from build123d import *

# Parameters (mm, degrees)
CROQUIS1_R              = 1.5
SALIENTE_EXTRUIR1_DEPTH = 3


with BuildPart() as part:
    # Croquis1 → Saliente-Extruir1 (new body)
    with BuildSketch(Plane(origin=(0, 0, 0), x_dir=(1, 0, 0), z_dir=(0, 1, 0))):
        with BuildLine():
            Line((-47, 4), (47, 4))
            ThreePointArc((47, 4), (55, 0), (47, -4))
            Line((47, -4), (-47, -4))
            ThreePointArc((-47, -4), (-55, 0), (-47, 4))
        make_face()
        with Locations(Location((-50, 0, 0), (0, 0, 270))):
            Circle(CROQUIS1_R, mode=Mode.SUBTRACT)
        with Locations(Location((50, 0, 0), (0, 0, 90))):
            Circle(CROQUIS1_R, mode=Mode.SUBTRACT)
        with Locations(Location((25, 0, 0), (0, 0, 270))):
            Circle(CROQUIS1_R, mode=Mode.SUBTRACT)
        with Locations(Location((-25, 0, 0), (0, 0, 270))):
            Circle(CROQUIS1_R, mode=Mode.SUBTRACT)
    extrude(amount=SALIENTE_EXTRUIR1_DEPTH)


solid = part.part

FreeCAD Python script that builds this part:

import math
import FreeCAD as App
import Part
import Sketcher

V = App.Vector

doc = App.newDocument("Part")
body = doc.addObject("PartDesign::Body", "Body")

# Sketch on XZ plane
sketch1 = body.newObject("Sketcher::SketchObject", "Sketch")
sketch1.AttachmentSupport = (doc.getObject("XZ_Plane"), [""])
sketch1.MapMode = "FlatFace"
sketch1.addGeometry([
    Part.LineSegment(V(47, -4, 0), V(-47, -4, 0)),  # 0
    Part.ArcOfCircle(Part.Circle(V(-50, 0, 0), V(0, 0, 1), 5), math.radians(53.130102), math.radians(306.869898)),  # 1
    Part.LineSegment(V(-47, 4, 0), V(47, 4, 0)),  # 2
    Part.ArcOfCircle(Part.Circle(V(50, 0, 0), V(0, 0, 1), 5), math.radians(-126.869898), math.radians(126.869898)),  # 3
    Part.Circle(V(50, 0, 0), V(0, 0, 1), 1.5),  # 4
    Part.Circle(V(25, 0, 0), V(0, 0, 1), 1.5),  # 5
    Part.Circle(V(-25, 0, 0), V(0, 0, 1), 1.5),  # 6
    Part.Circle(V(-50, 0, 0), V(0, 0, 1), 1.5),  # 7
], False)
sketch1.addConstraint([
    Sketcher.Constraint("Coincident", 0, 2, 1, 2),
    Sketcher.Constraint("Coincident", 1, 1, 2, 1),
    Sketcher.Constraint("Coincident", 2, 2, 3, 2),
    Sketcher.Constraint("Coincident", 3, 1, 0, 1),
    Sketcher.Constraint("Horizontal", 0),
    Sketcher.Constraint("Horizontal", 2),
    Sketcher.Constraint("Coincident", 4, 3, 3, 3),
    Sketcher.Constraint("Coincident", 7, 3, 1, 3),
    Sketcher.Constraint("Equal", 1, 3),
    Sketcher.Constraint("Equal", 4, 5),
    Sketcher.Constraint("Equal", 5, 6),
    Sketcher.Constraint("Equal", 6, 7),
    Sketcher.Constraint("Symmetric", 1, 3, 3, 3, -1, 1),
    Sketcher.Constraint("Symmetric", 5, 3, 6, 3, -1, 1),
    Sketcher.Constraint("Symmetric", 0, 2, 1, 1, -1),
    Sketcher.Constraint("PointOnObject", 5, 3, -1),
    Sketcher.Constraint("Diameter", 4, 3.0),
    Sketcher.Constraint("Radius", 1, 5.0),
    Sketcher.Constraint("DistanceX", 0, 2, 0, 1, 94.0),
    Sketcher.Constraint("DistanceX", 1, 3, -1, 1, 50.0),
    Sketcher.Constraint("DistanceX", -1, 1, 5, 3, 25.0),
])
pad1 = body.newObject("PartDesign::Pad", "Pad")
pad1.Profile = sketch1
pad1.Length = 3
pad1.Reversed = True

doc.recompute()
